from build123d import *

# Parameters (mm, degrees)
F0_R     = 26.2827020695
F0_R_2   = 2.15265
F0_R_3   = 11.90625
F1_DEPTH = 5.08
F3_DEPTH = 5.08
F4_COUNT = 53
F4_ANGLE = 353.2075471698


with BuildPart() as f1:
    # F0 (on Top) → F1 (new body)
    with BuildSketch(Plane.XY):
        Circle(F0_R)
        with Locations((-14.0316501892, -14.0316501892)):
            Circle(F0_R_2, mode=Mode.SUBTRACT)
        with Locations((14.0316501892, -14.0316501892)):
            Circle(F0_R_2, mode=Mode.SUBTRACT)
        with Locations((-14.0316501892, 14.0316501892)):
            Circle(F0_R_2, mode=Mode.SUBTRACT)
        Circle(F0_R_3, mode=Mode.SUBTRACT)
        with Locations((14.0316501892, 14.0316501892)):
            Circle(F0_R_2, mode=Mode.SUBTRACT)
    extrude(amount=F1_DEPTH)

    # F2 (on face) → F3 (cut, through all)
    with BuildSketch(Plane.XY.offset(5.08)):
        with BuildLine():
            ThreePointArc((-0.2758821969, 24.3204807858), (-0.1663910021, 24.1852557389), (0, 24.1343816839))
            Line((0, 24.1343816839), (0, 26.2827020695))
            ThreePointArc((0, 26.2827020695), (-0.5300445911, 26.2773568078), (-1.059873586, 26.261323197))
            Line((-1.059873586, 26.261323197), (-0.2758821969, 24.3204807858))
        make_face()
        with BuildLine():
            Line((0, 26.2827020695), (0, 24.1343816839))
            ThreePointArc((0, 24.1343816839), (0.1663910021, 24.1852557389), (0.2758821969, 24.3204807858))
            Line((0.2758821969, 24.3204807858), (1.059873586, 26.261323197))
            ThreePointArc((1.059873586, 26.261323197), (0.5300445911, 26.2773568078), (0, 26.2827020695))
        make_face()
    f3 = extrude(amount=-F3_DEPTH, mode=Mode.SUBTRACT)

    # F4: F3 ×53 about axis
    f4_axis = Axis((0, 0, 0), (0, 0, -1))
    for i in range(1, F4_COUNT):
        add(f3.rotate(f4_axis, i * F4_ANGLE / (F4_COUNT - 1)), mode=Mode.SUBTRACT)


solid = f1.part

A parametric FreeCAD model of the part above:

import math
import FreeCAD as App
import Part
import Sketcher

V = App.Vector
Q = App.Units.Quantity

doc = App.newDocument("Part")
body = doc.addObject("PartDesign::Body", "Body")

# Sketch on XY plane
sketch1 = body.newObject("Sketcher::SketchObject", "Sketch")
sketch1.AttachmentSupport = (doc.getObject("XY_Plane"), [""])
sketch1.MapMode = "FlatFace"
sketch1.addGeometry(Part.Circle(V(0, 0, 0), V(0, 0, 1), 26.3), False)
sketch1.addGeometry(Part.Circle(V(-14, -14, 0), V(0, 0, 1), 2.2), False)
sketch1.addGeometry(Part.Circle(V(14, -14, 0), V(0, 0, 1), 2.2), False)
sketch1.addGeometry(Part.Circle(V(-14, 14, 0), V(0, 0, 1), 2.2), False)
sketch1.addGeometry(Part.Circle(V(0, 0, 0), V(0, 0, 1), 11.9), False)
sketch1.addGeometry(Part.Circle(V(14, 14, 0), V(0, 0, 1), 2.2), False)
sketch1.addConstraint(Sketcher.Constraint("Coincident", 0, 3, -1, 1))
sketch1.addConstraint(Sketcher.Constraint("Coincident", 4, 3, -1, 1))
sketch1.addConstraint(Sketcher.Constraint("Equal", 1, 2))
sketch1.addConstraint(Sketcher.Constraint("Equal", 2, 3))
sketch1.addConstraint(Sketcher.Constraint("Equal", 3, 5))
sketch1.addConstraint(Sketcher.Constraint("Symmetric", 2, 3, 3, 3, -1, 1))
sketch1.addConstraint(Sketcher.Constraint("Symmetric", 1, 3, 5, 3, -1, 1))
sketch1.addConstraint(Sketcher.Constraint("Symmetric", 1, 3, 2, 3, -2))
sketch1.addConstraint(Sketcher.Constraint("Diameter", 4, Q("0.9375 in")))
sketch1.addConstraint(Sketcher.Constraint("Diameter", 1, Q("0.1695 in")))
sketch1.addConstraint(Sketcher.Constraint("Diameter", 0, Q("52.565404 mm")))
sketch1.addConstraint(Sketcher.Constraint("DistanceX", 1, 3, 2, 3, Q("28.0633 mm")))
sketch1.addConstraint(Sketcher.Constraint("DistanceY", 1, 3, 3, 3, Q("28.0633 mm")))
pad1 = body.newObject("PartDesign::Pad", "Pad")
pad1.Profile = sketch1
pad1.Length = Q("0.2 in")

# Sketch on XY plane
sketch2 = body.newObject("Sketcher::SketchObject", "Sketch001")
sketch2.AttachmentSupport = (doc.getObject("XY_Plane"), [""])
sketch2.MapMode = "FlatFace"
sketch2.AttachmentOffset = App.Placement(V(0, 0, 0.2 * 25.4), App.Rotation())
sketch2.addGeometry(Part.ArcOfCircle(Part.Circle(V(0, 24.43, 0), V(0, 0, 1), 0.3), math.radians(-158), math.radians(-90)), False)
sketch2.addGeometry(Part.ArcOfCircle(Part.Circle(V(0, 24.43, 0), V(0, 0, 1), 0.3), math.radians(-90), math.radians(-22)), False)
sketch2.addGeometry(Part.LineSegment(V(0.28, 24.32, 0), V(1.06, 26.26, 0)), False)
sketch2.addGeometry(Part.ArcOfCircle(Part.Circle(V(0, 0, 0), V(0, 0, 1), 26.28), math.radians(87.69), math.radians(90)), False)
sketch2.addGeometry(Part.ArcOfCircle(Part.Circle(V(0, 0, 0), V(0, 0, 1), 26.28), math.radians(90), math.radians(92.31)), False)
sketch2.addGeometry(Part.LineSegment(V(-1.06, 26.26, 0), V(-0.28, 24.32, 0)), False)
sketch2.addConstraint(Sketcher.Constraint("Tangent", 0, 2, 1, 1))
sketch2.addConstraint(Sketcher.Constraint("Tangent", 1, 2, 2, 1))
sketch2.addConstraint(Sketcher.Constraint("Coincident", 2, 2, 3, 1))
sketch2.addConstraint(Sketcher.Constraint("Tangent", 3, 2, 4, 1))
sketch2.addConstraint(Sketcher.Constraint("Coincident", 4, 2, 5, 1))
sketch2.addConstraint(Sketcher.Constraint("Tangent", 5, 2, 0, 1))
sketch2.addConstraint(Sketcher.Constraint("Coincident", 3, 3, -1, 1))
sketch2.addConstraint(Sketcher.Constraint("Equal", 0, 1))
sketch2.addConstraint(Sketcher.Constraint("Equal", 3, 4))
sketch2.addConstraint(Sketcher.Constraint("Symmetric", 1, 2, 5, 2, -2))
sketch2.addConstraint(Sketcher.Constraint("PointOnObject", 0, 2, -2))
sketch2.addConstraint(Sketcher.Constraint("PointOnObject", 3, 2, -2))
sketch2.addConstraint(Sketcher.Constraint("Radius", 0, Q("0.29754 mm")))
sketch2.addConstraint(Sketcher.Constraint("Radius", 3, Q("26.282702 mm")))
sketch2.addConstraint(Sketcher.Constraint("DistanceY", 0, 2, 1, 2, Q("0.186099 mm")))
sketch2.addConstraint(Sketcher.Constraint("DistanceY", 0, 3, 2, 2, Q("1.829401 mm")))
pocket1 = body.newObject("PartDesign::Pocket", "Pocket")
pocket1.Profile = sketch2
pocket1.Type = "ThroughAll"
doc.recompute()

polarpattern = body.newObject("PartDesign::PolarPattern", "PolarPattern")
polarpattern.Originals = [pocket1]
polarpattern.Axis = (doc.getObject("Z_Axis"), [""])
polarpattern.Angle = 360
polarpattern.Occurrences = 53
body.Tip = polarpattern

doc.recompute()
